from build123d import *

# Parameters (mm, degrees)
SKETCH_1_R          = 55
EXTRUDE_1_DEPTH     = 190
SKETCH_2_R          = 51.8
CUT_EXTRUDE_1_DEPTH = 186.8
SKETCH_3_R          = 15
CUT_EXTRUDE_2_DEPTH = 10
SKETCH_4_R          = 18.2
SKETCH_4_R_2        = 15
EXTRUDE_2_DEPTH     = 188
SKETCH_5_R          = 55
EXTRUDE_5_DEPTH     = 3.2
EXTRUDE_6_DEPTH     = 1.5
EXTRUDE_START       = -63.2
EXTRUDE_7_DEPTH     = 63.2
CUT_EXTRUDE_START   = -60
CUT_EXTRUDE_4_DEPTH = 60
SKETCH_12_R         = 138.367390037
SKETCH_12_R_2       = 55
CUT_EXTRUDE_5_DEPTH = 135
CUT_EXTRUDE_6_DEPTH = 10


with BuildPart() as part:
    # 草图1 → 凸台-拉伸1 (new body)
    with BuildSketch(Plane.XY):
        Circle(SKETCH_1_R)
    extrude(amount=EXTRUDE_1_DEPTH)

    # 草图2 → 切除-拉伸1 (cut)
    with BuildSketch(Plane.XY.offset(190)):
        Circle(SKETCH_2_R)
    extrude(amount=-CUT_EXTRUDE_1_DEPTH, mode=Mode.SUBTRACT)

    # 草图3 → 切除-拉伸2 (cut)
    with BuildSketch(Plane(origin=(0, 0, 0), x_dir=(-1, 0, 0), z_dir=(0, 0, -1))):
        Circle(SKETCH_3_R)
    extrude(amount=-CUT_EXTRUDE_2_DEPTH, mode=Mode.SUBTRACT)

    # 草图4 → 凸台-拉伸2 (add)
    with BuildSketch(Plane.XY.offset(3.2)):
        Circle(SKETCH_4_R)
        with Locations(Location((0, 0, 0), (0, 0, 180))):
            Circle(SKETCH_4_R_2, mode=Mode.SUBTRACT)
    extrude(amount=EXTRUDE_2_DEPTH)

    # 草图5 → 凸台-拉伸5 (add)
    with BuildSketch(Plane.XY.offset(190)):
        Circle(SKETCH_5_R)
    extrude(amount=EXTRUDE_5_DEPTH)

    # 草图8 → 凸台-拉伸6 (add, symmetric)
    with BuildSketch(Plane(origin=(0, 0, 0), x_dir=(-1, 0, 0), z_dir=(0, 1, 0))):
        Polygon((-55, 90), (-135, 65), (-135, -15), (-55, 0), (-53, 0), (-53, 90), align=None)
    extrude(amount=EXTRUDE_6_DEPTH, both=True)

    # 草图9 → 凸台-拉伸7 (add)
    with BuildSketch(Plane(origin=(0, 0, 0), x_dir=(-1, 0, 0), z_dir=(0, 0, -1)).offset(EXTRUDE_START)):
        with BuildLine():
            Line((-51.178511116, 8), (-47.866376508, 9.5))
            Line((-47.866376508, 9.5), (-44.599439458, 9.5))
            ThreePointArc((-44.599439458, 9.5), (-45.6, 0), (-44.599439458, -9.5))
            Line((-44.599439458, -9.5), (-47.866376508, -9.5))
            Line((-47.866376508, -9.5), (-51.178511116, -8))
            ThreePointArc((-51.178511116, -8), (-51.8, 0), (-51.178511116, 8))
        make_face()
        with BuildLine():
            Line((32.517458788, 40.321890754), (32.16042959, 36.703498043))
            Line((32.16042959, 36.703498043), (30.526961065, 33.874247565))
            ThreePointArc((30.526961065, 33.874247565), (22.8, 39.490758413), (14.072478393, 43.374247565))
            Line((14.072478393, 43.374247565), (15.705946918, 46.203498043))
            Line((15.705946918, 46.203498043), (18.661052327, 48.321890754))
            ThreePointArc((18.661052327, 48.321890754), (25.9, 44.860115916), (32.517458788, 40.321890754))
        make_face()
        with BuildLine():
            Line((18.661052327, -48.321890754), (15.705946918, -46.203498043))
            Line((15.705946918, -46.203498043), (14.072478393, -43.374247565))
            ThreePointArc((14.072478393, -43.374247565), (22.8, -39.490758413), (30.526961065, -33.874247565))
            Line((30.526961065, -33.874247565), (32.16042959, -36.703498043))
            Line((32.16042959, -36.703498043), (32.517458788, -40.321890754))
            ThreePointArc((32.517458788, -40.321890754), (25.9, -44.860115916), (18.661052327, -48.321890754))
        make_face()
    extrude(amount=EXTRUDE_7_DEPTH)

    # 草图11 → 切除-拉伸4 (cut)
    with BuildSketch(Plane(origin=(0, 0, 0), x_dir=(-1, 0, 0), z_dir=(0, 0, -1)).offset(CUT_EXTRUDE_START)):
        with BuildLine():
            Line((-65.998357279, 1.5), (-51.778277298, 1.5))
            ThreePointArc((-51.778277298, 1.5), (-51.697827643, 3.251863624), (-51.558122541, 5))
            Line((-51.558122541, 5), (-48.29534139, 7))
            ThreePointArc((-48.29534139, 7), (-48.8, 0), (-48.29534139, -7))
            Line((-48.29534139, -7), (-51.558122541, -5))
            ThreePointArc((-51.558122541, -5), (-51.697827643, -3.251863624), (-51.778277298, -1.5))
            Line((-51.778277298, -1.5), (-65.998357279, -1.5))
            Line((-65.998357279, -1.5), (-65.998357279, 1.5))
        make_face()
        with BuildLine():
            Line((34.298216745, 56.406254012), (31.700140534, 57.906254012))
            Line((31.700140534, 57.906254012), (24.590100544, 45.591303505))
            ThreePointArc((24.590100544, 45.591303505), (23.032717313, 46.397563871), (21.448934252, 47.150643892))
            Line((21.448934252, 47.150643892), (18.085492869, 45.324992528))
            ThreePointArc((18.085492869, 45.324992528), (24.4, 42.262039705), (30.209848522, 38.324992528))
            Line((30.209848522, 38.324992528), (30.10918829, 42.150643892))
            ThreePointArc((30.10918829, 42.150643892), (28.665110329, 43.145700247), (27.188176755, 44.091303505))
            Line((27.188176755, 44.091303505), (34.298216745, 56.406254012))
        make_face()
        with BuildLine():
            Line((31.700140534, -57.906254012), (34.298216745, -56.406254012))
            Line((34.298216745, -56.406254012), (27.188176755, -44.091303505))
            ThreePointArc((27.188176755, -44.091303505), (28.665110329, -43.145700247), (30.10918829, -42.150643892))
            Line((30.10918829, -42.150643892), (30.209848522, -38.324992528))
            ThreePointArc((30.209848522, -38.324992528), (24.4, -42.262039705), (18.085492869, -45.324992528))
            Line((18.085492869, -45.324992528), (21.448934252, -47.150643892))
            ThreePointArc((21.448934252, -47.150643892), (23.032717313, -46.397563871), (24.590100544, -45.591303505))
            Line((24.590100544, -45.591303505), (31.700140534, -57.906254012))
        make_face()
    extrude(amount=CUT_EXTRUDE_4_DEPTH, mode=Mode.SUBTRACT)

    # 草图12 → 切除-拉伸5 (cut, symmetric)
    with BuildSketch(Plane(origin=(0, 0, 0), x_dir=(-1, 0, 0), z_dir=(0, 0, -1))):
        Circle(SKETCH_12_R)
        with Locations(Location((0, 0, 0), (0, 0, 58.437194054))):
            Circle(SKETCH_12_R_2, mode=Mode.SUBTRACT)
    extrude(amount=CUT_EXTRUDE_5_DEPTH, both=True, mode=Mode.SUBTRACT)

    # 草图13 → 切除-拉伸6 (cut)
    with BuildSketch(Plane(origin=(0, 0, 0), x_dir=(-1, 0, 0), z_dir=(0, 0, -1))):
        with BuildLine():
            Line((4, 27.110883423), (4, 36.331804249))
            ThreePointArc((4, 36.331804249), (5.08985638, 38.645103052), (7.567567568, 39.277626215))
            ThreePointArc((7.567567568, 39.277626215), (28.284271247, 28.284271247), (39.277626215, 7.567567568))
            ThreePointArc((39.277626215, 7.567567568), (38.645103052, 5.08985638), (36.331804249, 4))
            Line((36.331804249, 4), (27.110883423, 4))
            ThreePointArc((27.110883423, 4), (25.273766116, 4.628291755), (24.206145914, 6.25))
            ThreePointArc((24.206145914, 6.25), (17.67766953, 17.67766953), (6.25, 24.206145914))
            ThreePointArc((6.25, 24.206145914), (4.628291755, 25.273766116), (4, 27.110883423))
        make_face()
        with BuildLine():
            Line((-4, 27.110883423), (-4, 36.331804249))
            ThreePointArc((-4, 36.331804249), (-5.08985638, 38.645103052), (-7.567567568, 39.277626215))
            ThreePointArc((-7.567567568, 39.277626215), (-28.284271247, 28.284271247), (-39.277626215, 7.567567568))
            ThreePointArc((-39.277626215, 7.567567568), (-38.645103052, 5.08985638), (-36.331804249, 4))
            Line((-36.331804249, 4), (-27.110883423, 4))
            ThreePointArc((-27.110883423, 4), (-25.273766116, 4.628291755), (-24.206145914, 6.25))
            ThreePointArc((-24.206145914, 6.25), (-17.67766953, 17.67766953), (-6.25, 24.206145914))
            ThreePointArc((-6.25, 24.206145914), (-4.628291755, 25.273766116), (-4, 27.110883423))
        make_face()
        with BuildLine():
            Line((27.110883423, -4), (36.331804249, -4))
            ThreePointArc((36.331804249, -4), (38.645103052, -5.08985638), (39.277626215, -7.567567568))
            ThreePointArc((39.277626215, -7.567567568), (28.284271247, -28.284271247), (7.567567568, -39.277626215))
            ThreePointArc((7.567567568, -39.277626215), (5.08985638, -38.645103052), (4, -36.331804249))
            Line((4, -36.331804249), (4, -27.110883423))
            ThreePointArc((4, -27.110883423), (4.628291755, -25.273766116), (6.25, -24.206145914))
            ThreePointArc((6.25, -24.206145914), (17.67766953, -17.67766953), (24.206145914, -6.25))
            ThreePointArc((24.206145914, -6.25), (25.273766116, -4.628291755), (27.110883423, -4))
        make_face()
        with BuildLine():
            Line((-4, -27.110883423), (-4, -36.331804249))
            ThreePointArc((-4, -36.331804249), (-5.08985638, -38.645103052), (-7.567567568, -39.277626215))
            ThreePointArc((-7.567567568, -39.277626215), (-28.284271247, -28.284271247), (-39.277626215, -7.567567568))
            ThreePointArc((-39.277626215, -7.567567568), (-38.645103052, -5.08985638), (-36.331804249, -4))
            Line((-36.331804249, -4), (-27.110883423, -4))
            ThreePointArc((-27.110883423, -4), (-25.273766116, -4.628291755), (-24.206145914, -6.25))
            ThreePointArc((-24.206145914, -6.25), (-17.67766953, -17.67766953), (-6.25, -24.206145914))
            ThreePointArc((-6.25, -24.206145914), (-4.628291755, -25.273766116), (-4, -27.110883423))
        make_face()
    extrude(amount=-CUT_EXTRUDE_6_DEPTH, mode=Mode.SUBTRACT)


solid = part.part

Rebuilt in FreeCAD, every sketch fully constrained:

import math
import FreeCAD as App
import Part
import Sketcher
Q = App.Units.Quantity

doc = App.newDocument("Part")
params = doc.addObject("Spreadsheet::Sheet", "Params")
for row, (alias, value) in enumerate([
    ("sketch1_diameter", "110 mm"),
    ("pad1_length", "190 mm"),
    ("sketch2_diameter", "103.6 mm"),
    ("pocket1_length", "186.8 mm"),
    ("sketch3_diameter", "30 mm"),
    ("pocket2_length", "10 mm"),
    ("sketch4_diameter", "30 mm"),
    ("sketch4_diameter2", "36.4 mm"),
    ("pad2_length", "188 mm"),
    ("sketch5_diameter", "110 mm"),
    ("pad3_length", "3.2 mm"),
    ("sketch6_width", "2 mm"),
    ("sketch6_height", "80 mm"),
    ("sketch6_height2", "90 mm"),
    ("pad4_length", "3 mm"),
    ("sketch7_radius", "51.8 mm"),
    ("sketch7_radius2", "45.6 mm"),
    ("pad5_length", "63.2 mm"),
    ("sketch8_radius", "51.799999 mm"),
    ("sketch8_radius2", "48.8 mm"),
    ("sketch8_height", "3 mm"),
    ("sketch8_length", "3 mm"),
    ("pocket3_length", "60 mm"),
    ("sketch9_diameter", "110 mm"),
    ("pocket4_length", "270 mm"),
    ("sketch10_radius", "3 mm"),
    ("sketch10_radius2", "25 mm"),
    ("sketch10_radius3", "40 mm"),
    ("pocket5_length", "10 mm"),
], start=1):
    params.set(f"A{row}", alias)
    params.set(f"B{row}", "=" + value)
    params.setAlias(f"B{row}", alias)

body = doc.addObject("PartDesign::Body", "Body")

# Sketch on XY plane
sketch1 = body.newObject("Sketcher::SketchObject", "Sketch")
sketch1.AttachmentSupport = (doc.getObject("XY_Plane"), [""])
sketch1.MapMode = "FlatFace"
sketch1.addGeometry(Part.Circle(App.Vector(0, 0, 0), App.Vector(0, 0, 1), 55), False)
sketch1.addConstraint(Sketcher.Constraint("Coincident", 0, 3, -1, 1))
sketch1.addConstraint(Sketcher.Constraint("Diameter", 0, Q("110 mm")))
sketch1.setExpression("Constraints[1]", "Params.sketch1_diameter")
pad1 = body.newObject("PartDesign::Pad", "Pad")
pad1.Profile = sketch1
pad1.setExpression("Length", "Params.pad1_length")

# Sketch on XY plane
sketch2 = body.newObject("Sketcher::SketchObject", "Sketch001")
sketch2.AttachmentSupport = (doc.getObject("XY_Plane"), [""])
sketch2.MapMode = "FlatFace"
sketch2.AttachmentOffset = App.Placement(App.Vector(0, 0, 190), App.Rotation())
sketch2.addGeometry(Part.Circle(App.Vector(0, 0, 0), App.Vector(0, 0, 1), 52), False)
sketch2.addConstraint(Sketcher.Constraint("Coincident", 0, 3, -1, 1))
sketch2.addConstraint(Sketcher.Constraint("Diameter", 0, Q("103.6 mm")))
sketch2.setExpression("Constraints[1]", "Params.sketch2_diameter")
pocket1 = body.newObject("PartDesign::Pocket", "Pocket")
pocket1.Profile = sketch2
pocket1.setExpression("Length", "Params.pocket1_length")

# Sketch on XY plane
sketch3 = body.newObject("Sketcher::SketchObject", "Sketch002")
sketch3.AttachmentSupport = (doc.getObject("XY_Plane"), [""])
sketch3.MapMode = "FlatFace"
sketch3.addGeometry(Part.Circle(App.Vector(0, 0, 0), App.Vector(0, 0, 1), 15), False)
sketch3.addConstraint(Sketcher.Constraint("Coincident", 0, 3, -1, 1))
sketch3.addConstraint(Sketcher.Constraint("Diameter", 0, Q("30 mm")))
sketch3.setExpression("Constraints[1]", "Params.sketch3_diameter")
pocket2 = body.newObject("PartDesign::Pocket", "Pocket001")
pocket2.Profile = sketch3
pocket2.setExpression("Length", "Params.pocket2_length")
pocket2.Reversed = True

# Sketch on XY plane
sketch4 = body.newObject("Sketcher::SketchObject", "Sketch003")
sketch4.AttachmentSupport = (doc.getObject("XY_Plane"), [""])
sketch4.MapMode = "FlatFace"
sketch4.AttachmentOffset = App.Placement(App.Vector(0, 0, 3.2), App.Rotation())
sketch4.addGeometry(Part.Circle(App.Vector(0, 0, 0), App.Vector(0, 0, 1), 18), False)
sketch4.addGeometry(Part.Circle(App.Vector(0, 0, 0), App.Vector(0, 0, 1), 15), False)
sketch4.addConstraint(Sketcher.Constraint("Coincident", 0, 3, -1, 1))
sketch4.addConstraint(Sketcher.Constraint("Coincident", 1, 3, -1, 1))
sketch4.addConstraint(Sketcher.Constraint("Diameter", 1, Q("30 mm")))
sketch4.addConstraint(Sketcher.Constraint("Diameter", 0, Q("36.4 mm")))
sketch4.setExpression("Constraints[2]", "Params.sketch4_diameter")
sketch4.setExpression("Constraints[3]", "Params.sketch4_diameter2")
pad2 = body.newObject("PartDesign::Pad", "Pad001")
pad2.Profile = sketch4
pad2.setExpression("Length", "Params.pad2_length")

# Sketch on XY plane
sketch5 = body.newObject("Sketcher::SketchObject", "Sketch004")
sketch5.AttachmentSupport = (doc.getObject("XY_Plane"), [""])
sketch5.MapMode = "FlatFace"
sketch5.AttachmentOffset = App.Placement(App.Vector(0, 0, 190), App.Rotation())
sketch5.addGeometry(Part.Circle(App.Vector(0, 0, 0), App.Vector(0, 0, 1), 55), False)
sketch5.addConstraint(Sketcher.Constraint("Coincident", 0, 3, -1, 1))
sketch5.addConstraint(Sketcher.Constraint("Diameter", 0, Q("110 mm")))
sketch5.setExpression("Constraints[1]", "Params.sketch5_diameter")
pad3 = body.newObject("PartDesign::Pad", "Pad002")
pad3.Profile = sketch5
pad3.setExpression("Length", "Params.pad3_length")

# Sketch on XZ plane
sketch6 = body.newObject("Sketcher::SketchObject", "Sketch005")
sketch6.AttachmentSupport = (doc.getObject("XZ_Plane"), [""])
sketch6.MapMode = "FlatFace"
sketch6.addGeometry(Part.LineSegment(App.Vector(55, 90, 0), App.Vector(135, 65, 0)), False)
sketch6.addGeometry(Part.LineSegment(App.Vector(135, 65, 0), App.Vector(135, -15, 0)), False)
sketch6.addGeometry(Part.LineSegment(App.Vector(135, -15, 0), App.Vector(55, 0, 0)), False)
sketch6.addGeometry(Part.LineSegment(App.Vector(55, 0, 0), App.Vector(53, 0, 0)), False)
sketch6.addGeometry(Part.LineSegment(App.Vector(53, 0, 0), App.Vector(53, 90, 0)), False)
sketch6.addGeometry(Part.LineSegment(App.Vector(53, 90, 0), App.Vector(55, 90, 0)), False)
sketch6.addConstraint(Sketcher.Constraint("Coincident", 0, 2, 1, 1))
sketch6.addConstraint(Sketcher.Constraint("Coincident", 1, 2, 2, 1))
sketch6.addConstraint(Sketcher.Constraint("Coincident", 2, 2, 3, 1))
sketch6.addConstraint(Sketcher.Constraint("Coincident", 3, 2, 4, 1))
sketch6.addConstraint(Sketcher.Constraint("Coincident", 4, 2, 5, 1))
sketch6.addConstraint(Sketcher.Constraint("Coincident", 5, 2, 0, 1))
sketch6.addConstraint(Sketcher.Constraint("Vertical", 1))
sketch6.addConstraint(Sketcher.Constraint("Horizontal", 3))
sketch6.addConstraint(Sketcher.Constraint("Vertical", 4))
sketch6.addConstraint(Sketcher.Constraint("Horizontal", 5))
sketch6.addConstraint(Sketcher.Constraint("PointOnObject", 2, 2, -1))
sketch6.addConstraint(Sketcher.Constraint("Vertical", 2, 2, 5, 2))
sketch6.addConstraint(Sketcher.Constraint("DistanceX", 3, 2, 3, 1, Q("2 mm")))
sketch6.addConstraint(Sketcher.Constraint("DistanceY", 1, 2, 1, 1, Q("80 mm")))
sketch6.addConstraint(Sketcher.Constraint("DistanceY", 4, 1, 4, 2, Q("90 mm")))
sketch6.addConstraint(Sketcher.Constraint("DistanceX", -1, 1, 0, 2, Q("135 mm")))
sketch6.addConstraint(Sketcher.Constraint("DistanceY", -1, 1, 0, 2, Q("65 mm")))
sketch6.addConstraint(Sketcher.Constraint("DistanceX", -1, 1, 2, 2, Q("55 mm")))
sketch6.setExpression("Constraints[12]", "Params.sketch6_width")
sketch6.setExpression("Constraints[13]", "Params.sketch6_height")
sketch6.setExpression("Constraints[14]", "Params.sketch6_height2")
pad4 = body.newObject("PartDesign::Pad", "Pad003")
pad4.Profile = sketch6
pad4.setExpression("Length", "Params.pad4_length")
pad4.Midplane = True

# Sketch on XY plane
sketch7 = body.newObject("Sketcher::SketchObject", "Sketch006")
sketch7.AttachmentSupport = (doc.getObject("XY_Plane"), [""])
sketch7.MapMode = "FlatFace"
sketch7.AttachmentOffset = App.Placement(App.Vector(0, 0, 63.2), App.Rotation())
sketch7.addGeometry(Part.LineSegment(App.Vector(47.9, 9.5, 0), App.Vector(51.2, 8, 0)), False)
sketch7.addGeometry(Part.ArcOfCircle(Part.Circle(App.Vector(0, 0, 0), App.Vector(0, 0, 1), 51.8), math.radians(-8.88), math.radians(8.88)), False)
sketch7.addGeometry(Part.LineSegment(App.Vector(51.2, -8, 0), App.Vector(47.9, -9.5, 0)), False)
sketch7.addGeometry(Part.LineSegment(App.Vector(47.9, -9.5, 0), App.Vector(44.6, -9.5, 0)), False)
sketch7.addGeometry(Part.ArcOfCircle(Part.Circle(App.Vector(0, 0, 0), App.Vector(0, 0, 1), 45.6), math.radians(-12), math.radians(12)), False)
sketch7.addGeometry(Part.LineSegment(App.Vector(44.6, 9.5, 0), App.Vector(47.9, 9.5, 0)), False)
sketch7.addGeometry(Part.LineSegment(App.Vector(-32.2, 36.7, 0), App.Vector(-32.5, 40.3, 0)), False)
sketch7.addGeometry(Part.ArcOfCircle(Part.Circle(App.Vector(0, 0, 0), App.Vector(0, 0, 1), 51.8), math.radians(111.12), math.radians(128.88)), False)
sketch7.addGeometry(Part.LineSegment(App.Vector(-18.7, 48.3, 0), App.Vector(-15.7, 46.2, 0)), False)
sketch7.addGeometry(Part.LineSegment(App.Vector(-15.7, 46.2, 0), App.Vector(-14.1, 43.4, 0)), False)
sketch7.addGeometry(Part.ArcOfCircle(Part.Circle(App.Vector(0, 0, 0), App.Vector(0, 0, 1), 45.6), math.radians(108), math.radians(132)), False)
sketch7.addGeometry(Part.LineSegment(App.Vector(-30.5, 33.9, 0), App.Vector(-32.2, 36.7, 0)), False)
sketch7.addGeometry(Part.LineSegment(App.Vector(-15.7, -46.2, 0), App.Vector(-18.7, -48.3, 0)), False)
sketch7.addGeometry(Part.ArcOfCircle(Part.Circle(App.Vector(0, 0, 0), App.Vector(0, 0, 1), 51.8), math.radians(-128.88), math.radians(-111.12)), False)
sketch7.addGeometry(Part.LineSegment(App.Vector(-32.5, -40.3, 0), App.Vector(-32.2, -36.7, 0)), False)
sketch7.addGeometry(Part.LineSegment(App.Vector(-32.2, -36.7, 0), App.Vector(-30.5, -33.9, 0)), False)
sketch7.addGeometry(Part.ArcOfCircle(Part.Circle(App.Vector(0, 0, 0), App.Vector(0, 0, 1), 45.6), math.radians(-132), math.radians(-108)), False)
sketch7.addGeometry(Part.LineSegment(App.Vector(-14.1, -43.4, 0), App.Vector(-15.7, -46.2, 0)), False)
sketch7.addConstraint(Sketcher.Constraint("Coincident", 0, 2, 1, 2))
sketch7.addConstraint(Sketcher.Constraint("Coincident", 1, 1, 2, 1))
sketch7.addConstraint(Sketcher.Constraint("Coincident", 2, 2, 3, 1))
sketch7.addConstraint(Sketcher.Constraint("Coincident", 3, 2, 4, 1))
sketch7.addConstraint(Sketcher.Constraint("Coincident", 4, 2, 5, 1))
sketch7.addConstraint(Sketcher.Constraint("Coincident", 5, 2, 0, 1))
sketch7.addConstraint(Sketcher.Constraint("Coincident", 6, 2, 7, 2))
sketch7.addConstraint(Sketcher.Constraint("Coincident", 7, 1, 8, 1))
sketch7.addConstraint(Sketcher.Constraint("Coincident", 8, 2, 9, 1))
sketch7.addConstraint(Sketcher.Constraint("Coincident", 9, 2, 10, 1))
sketch7.addConstraint(Sketcher.Constraint("Coincident", 10, 2, 11, 1))
sketch7.addConstraint(Sketcher.Constraint("Coincident", 11, 2, 6, 1))
sketch7.addConstraint(Sketcher.Constraint("Coincident", 12, 2, 13, 2))
sketch7.addConstraint(Sketcher.Constraint("Coincident", 13, 1, 14, 1))
sketch7.addConstraint(Sketcher.Constraint("Coincident", 14, 2, 15, 1))
sketch7.addConstraint(Sketcher.Constraint("Coincident", 15, 2, 16, 1))
sketch7.addConstraint(Sketcher.Constraint("Coincident", 16, 2, 17, 1))
sketch7.addConstraint(Sketcher.Constraint("Coincident", 17, 2, 12, 1))
sketch7.addConstraint(Sketcher.Constraint("Horizontal", 3))
sketch7.addConstraint(Sketcher.Constraint("Horizontal", 5))
sketch7.addConstraint(Sketcher.Constraint("Coincident", 1, 3, -1, 1))
sketch7.addConstraint(Sketcher.Constraint("Coincident", 4, 3, -1, 1))
sketch7.addConstraint(Sketcher.Constraint("Coincident", 7, 3, -1, 1))
sketch7.addConstraint(Sketcher.Constraint("Coincident", 10, 3, -1, 1))
sketch7.addConstraint(Sketcher.Constraint("Coincident", 13, 3, -1, 1))
sketch7.addConstraint(Sketcher.Constraint("Coincident", 16, 3, -1, 1))
sketch7.addConstraint(Sketcher.Constraint("Equal", 1, 7))
sketch7.addConstraint(Sketcher.Constraint("Equal", 4, 10))
sketch7.addConstraint(Sketcher.Constraint("Equal", 7, 13))
sketch7.addConstraint(Sketcher.Constraint("Equal", 10, 16))
sketch7.addConstraint(Sketcher.Constraint("Symmetric", 2, 2, 5, 2, -1))
sketch7.addConstraint(Sketcher.Constraint("Symmetric", 11, 2, 14, 2, -1))
sketch7.addConstraint(Sketcher.Constraint("Symmetric", 8, 2, 17, 2, -1))
sketch7.addConstraint(Sketcher.Constraint("Parallel", 9, 11))
sketch7.addConstraint(Sketcher.Constraint("Parallel", 15, 17))
sketch7.addConstraint(Sketcher.Constraint("Vertical", 0, 2, 1, 1))
sketch7.addConstraint(Sketcher.Constraint("Vertical", 7, 1, 12, 2))
sketch7.addConstraint(Sketcher.Constraint("Vertical", 6, 2, 13, 1))
sketch7.addConstraint(Sketcher.Constraint("Vertical", 10, 2, 15, 2))
sketch7.addConstraint(Sketcher.Constraint("Equal", 2, 6))
sketch7.addConstraint(Sketcher.Constraint("Equal", 6, 8))
sketch7.addConstraint(Sketcher.Constraint("Equal", 9, 11))
sketch7.addConstraint(Sketcher.Constraint("Radius", 1, Q("51.8 mm")))
sketch7.addConstraint(Sketcher.Constraint("Radius", 4, Q("45.6 mm")))
sketch7.addConstraint(Sketcher.Constraint("Angle", 9, Q("-60 deg")))
sketch7.addConstraint(Sketcher.Constraint("DistanceY", -1, 1, 0, 2, Q("8 mm")))
sketch7.addConstraint(Sketcher.Constraint("DistanceY", 3, 2, 4, 2, Q("19 mm")))
sketch7.addConstraint(Sketcher.Constraint("DistanceY", 6, 2, 7, 1, Q("8 mm")))
sketch7.addConstraint(Sketcher.Constraint("DistanceY", 10, 2, 9, 2, Q("9.5 mm")))
sketch7.addConstraint(Sketcher.Constraint("DistanceY", -1, 1, 8, 2, Q("46.203498 mm")))
sketch7.addConstraint(Sketcher.Constraint("DistanceX", 3, 2, 3, 1, Q("3.266937 mm")))
sketch7.setExpression("Constraints[42]", "Params.sketch7_radius")
sketch7.setExpression("Constraints[43]", "Params.sketch7_radius2")
pad5 = body.newObject("PartDesign::Pad", "Pad004")
pad5.Profile = sketch7
pad5.setExpression("Length", "Params.pad5_length")
pad5.Reversed = True

# Sketch on XY plane
sketch8 = body.newObject("Sketcher::SketchObject", "Sketch007")
sketch8.AttachmentSupport = (doc.getObject("XY_Plane"), [""])
sketch8.MapMode = "FlatFace"
sketch8.AttachmentOffset = App.Placement(App.Vector(0, 0, 60), App.Rotation())
sketch8.addGeometry(Part.LineSegment(App.Vector(51.8, 1.5, 0), App.Vector(66, 1.5, 0)), False)
sketch8.addGeometry(Part.LineSegment(App.Vector(66, 1.5, 0), App.Vector(66, -1.5, 0)), False)
sketch8.addGeometry(Part.LineSegment(App.Vector(66, -1.5, 0), App.Vector(51.8, -1.5, 0)), False)
sketch8.addGeometry(Part.ArcOfCircle(Part.Circle(App.Vector(0, 0, 0), App.Vector(0, 0, 1), 51.8), math.radians(-5.54), math.radians(-1.66)), False)
sketch8.addGeometry(Part.LineSegment(App.Vector(51.6, -5, 0), App.Vector(48.3, -7, 0)), False)
sketch8.addGeometry(Part.ArcOfCircle(Part.Circle(App.Vector(0, 0, 0), App.Vector(0, 0, 1), 48.8), math.radians(-8.25), math.radians(8.25)), False)
sketch8.addGeometry(Part.LineSegment(App.Vector(48.3, 7, 0), App.Vector(51.6, 5, 0)), False)
sketch8.addGeometry(Part.ArcOfCircle(Part.Circle(App.Vector(0, 0, 0), App.Vector(0, 0, 1), 51.8), math.radians(1.66), math.radians(5.54)), False)
sketch8.addGeometry(Part.LineSegment(App.Vector(-34.3, 56.4, 0), App.Vector(-31.7, 57.9, 0)), False)
sketch8.addGeometry(Part.LineSegment(App.Vector(-31.7, 57.9, 0), App.Vector(-24.6, 45.6, 0)), False)
sketch8.addGeometry(Part.ArcOfCircle(Part.Circle(App.Vector(0, 0, 0), App.Vector(0, 0, 1), 51.8), math.radians(114.46), math.radians(118.34)), False)
sketch8.addGeometry(Part.LineSegment(App.Vector(-21.4, 47.2, 0), App.Vector(-18.1, 45.3, 0)), False)
sketch8.addGeometry(Part.ArcOfCircle(Part.Circle(App.Vector(0, 0, 0), App.Vector(0, 0, 1), 48.8), math.radians(111.75), math.radians(128.25)), False)
sketch8.addGeometry(Part.LineSegment(App.Vector(-30.2, 38.3, 0), App.Vector(-30.1, 42.2, 0)), False)
sketch8.addGeometry(Part.ArcOfCircle(Part.Circle(App.Vector(0, 0, 0), App.Vector(0, 0, 1), 51.8), math.radians(121.66), math.radians(125.54)), False)
sketch8.addGeometry(Part.LineSegment(App.Vector(-27.2, 44.1, 0), App.Vector(-34.3, 56.4, 0)), False)
sketch8.addGeometry(Part.LineSegment(App.Vector(-31.7, -57.9, 0), App.Vector(-34.3, -56.4, 0)), False)
sketch8.addGeometry(Part.LineSegment(App.Vector(-34.3, -56.4, 0), App.Vector(-27.2, -44.1, 0)), False)
sketch8.addGeometry(Part.ArcOfCircle(Part.Circle(App.Vector(0, 0, 0), App.Vector(0, 0, 1), 51.8), math.radians(-125.54), math.radians(-121.66)), False)
sketch8.addGeometry(Part.LineSegment(App.Vector(-30.1, -42.2, 0), App.Vector(-30.2, -38.3, 0)), False)
sketch8.addGeometry(Part.ArcOfCircle(Part.Circle(App.Vector(0, 0, 0), App.Vector(0, 0, 1), 48.8), math.radians(-128.25), math.radians(-111.75)), False)
sketch8.addGeometry(Part.LineSegment(App.Vector(-18.1, -45.3, 0), App.Vector(-21.4, -47.2, 0)), False)
sketch8.addGeometry(Part.ArcOfCircle(Part.Circle(App.Vector(0, 0, 0), App.Vector(0, 0, 1), 51.8), math.radians(-118.34), math.radians(-114.46)), False)
sketch8.addGeometry(Part.LineSegment(App.Vector(-24.6, -45.6, 0), App.Vector(-31.7, -57.9, 0)), False)
sketch8.addConstraint(Sketcher.Constraint("Coincident", 0, 2, 1, 1))
sketch8.addConstraint(Sketcher.Constraint("Coincident", 1, 2, 2, 1))
sketch8.addConstraint(Sketcher.Constraint("Coincident", 2, 2, 3, 2))
sketch8.addConstraint(Sketcher.Constraint("Coincident", 3, 1, 4, 1))
sketch8.addConstraint(Sketcher.Constraint("Coincident", 4, 2, 5, 1))
sketch8.addConstraint(Sketcher.Constraint("Coincident", 5, 2, 6, 1))
sketch8.addConstraint(Sketcher.Constraint("Coincident", 6, 2, 7, 2))
sketch8.addConstraint(Sketcher.Constraint("Coincident", 7, 1, 0, 1))
sketch8.addConstraint(Sketcher.Constraint("Coincident", 8, 2, 9, 1))
sketch8.addConstraint(Sketcher.Constraint("Coincident", 9, 2, 10, 2))
sketch8.addConstraint(Sketcher.Constraint("Coincident", 10, 1, 11, 1))
sketch8.addConstraint(Sketcher.Constraint("Coincident", 11, 2, 12, 1))
sketch8.addConstraint(Sketcher.Constraint("Coincident", 12, 2, 13, 1))
sketch8.addConstraint(Sketcher.Constraint("Coincident", 13, 2, 14, 2))
sketch8.addConstraint(Sketcher.Constraint("Coincident", 14, 1, 15, 1))
sketch8.addConstraint(Sketcher.Constraint("Coincident", 15, 2, 8, 1))
sketch8.addConstraint(Sketcher.Constraint("Coincident", 16, 2, 17, 1))
sketch8.addConstraint(Sketcher.Constraint("Coincident", 17, 2, 18, 2))
sketch8.addConstraint(Sketcher.Constraint("Coincident", 18, 1, 19, 1))
sketch8.addConstraint(Sketcher.Constraint("Coincident", 19, 2, 20, 1))
sketch8.addConstraint(Sketcher.Constraint("Coincident", 20, 2, 21, 1))
sketch8.addConstraint(Sketcher.Constraint("Coincident", 21, 2, 22, 2))
sketch8.addConstraint(Sketcher.Constraint("Coincident", 22, 1, 23, 1))
sketch8.addConstraint(Sketcher.Constraint("Coincident", 23, 2, 16, 1))
sketch8.addConstraint(Sketcher.Constraint("Horizontal", 0))
sketch8.addConstraint(Sketcher.Constraint("Vertical", 1))
sketch8.addConstraint(Sketcher.Constraint("Horizontal", 2))
sketch8.addConstraint(Sketcher.Constraint("Coincident", 3, 3, -1, 1))
sketch8.addConstraint(Sketcher.Constraint("Coincident", 5, 3, -1, 1))
sketch8.addConstraint(Sketcher.Constraint("Coincident", 7, 3, -1, 1))
sketch8.addConstraint(Sketcher.Constraint("Coincident", 10, 3, -1, 1))
sketch8.addConstraint(Sketcher.Constraint("Coincident", 12, 3, -1, 1))
sketch8.addConstraint(Sketcher.Constraint("Coincident", 14, 3, -1, 1))
sketch8.addConstraint(Sketcher.Constraint("Coincident", 18, 3, -1, 1))
sketch8.addConstraint(Sketcher.Constraint("Coincident", 20, 3, -1, 1))
sketch8.addConstraint(Sketcher.Constraint("Coincident", 22, 3, -1, 1))
sketch8.addConstraint(Sketcher.Constraint("Equal", 3, 7))
sketch8.addConstraint(Sketcher.Constraint("Equal", 7, 10))
sketch8.addConstraint(Sketcher.Constraint("Equal", 5, 12))
sketch8.addConstraint(Sketcher.Constraint("Equal", 10, 14))
sketch8.addConstraint(Sketcher.Constraint("Equal", 14, 18))
sketch8.addConstraint(Sketcher.Constraint("Equal", 12, 20))
sketch8.addConstraint(Sketcher.Constraint("Equal", 18, 22))
sketch8.addConstraint(Sketcher.Constraint("Symmetric", 15, 2, 16, 2, -1))
sketch8.addConstraint(Sketcher.Constraint("Symmetric", 8, 2, 23, 2, -1))
sketch8.addConstraint(Sketcher.Constraint("Perpendicular", 8, 9))
sketch8.addConstraint(Sketcher.Constraint("Parallel", 9, 15))
sketch8.addConstraint(Sketcher.Constraint("Perpendicular", 16, 17))
sketch8.addConstraint(Sketcher.Constraint("Parallel", 17, 23))
sketch8.addConstraint(Sketcher.Constraint("Vertical", 4, 2, 5, 2))
sketch8.addConstraint(Sketcher.Constraint("Vertical", 3, 1, 6, 2))
sketch8.addConstraint(Sketcher.Constraint("Vertical", 2, 2, 7, 1))
sketch8.addConstraint(Sketcher.Constraint("Vertical", 13, 2, 18, 1))
sketch8.addConstraint(Sketcher.Constraint("Vertical", 12, 2, 19, 2))
sketch8.addConstraint(Sketcher.Constraint("Vertical", 11, 2, 20, 2))
sketch8.addConstraint(Sketcher.Constraint("Vertical", 10, 1, 21, 2))
sketch8.addConstraint(Sketcher.Constraint("Equal", 6, 11))
sketch8.addConstraint(Sketcher.Constraint("Equal", 11, 13))
sketch8.addConstraint(Sketcher.Constraint("Equal", 9, 15))
sketch8.addConstraint(Sketcher.Constraint("Radius", 3, Q("51.799999 mm")))
sketch8.addConstraint(Sketcher.Constraint("Radius", 5, Q("48.8 mm")))
sketch8.addConstraint(Sketcher.Constraint("DistanceY", 1, 2, 1, 1, Q("3 mm")))
sketch8.addConstraint(Sketcher.Constraint("Angle", 8, Q("30 deg")))
sketch8.addConstraint(Sketcher.Constraint("Distance", 8, Q("3 mm")))
sketch8.addConstraint(Sketcher.Constraint("DistanceY", 3, 1, -1, 1, Q("5 mm")))
sketch8.addConstraint(Sketcher.Constraint("DistanceY", 4, 2, -1, 1, Q("7 mm")))
sketch8.addConstraint(Sketcher.Constraint("DistanceY", 12, 2, 11, 2, Q("7 mm")))
sketch8.addConstraint(Sketcher.Constraint("DistanceX", 0, 1, 0, 2, Q("14.22008 mm")))
sketch8.addConstraint(Sketcher.Constraint("Distance", 9, Q("14.22008 mm")))
sketch8.addConstraint(Sketcher.Constraint("DistanceX", 12, 2, -1, 1, Q("30.209849 mm")))
sketch8.setExpression("Constraints[59]", "Params.sketch8_radius")
sketch8.setExpression("Constraints[60]", "Params.sketch8_radius2")
sketch8.setExpression("Constraints[61]", "Params.sketch8_height")
sketch8.setExpression("Constraints[63]", "Params.sketch8_length")
pocket3 = body.newObject("PartDesign::Pocket", "Pocket002")
pocket3.Profile = sketch8
pocket3.setExpression("Length", "Params.pocket3_length")

# Sketch on XY plane
sketch9 = body.newObject("Sketcher::SketchObject", "Sketch008")
sketch9.AttachmentSupport = (doc.getObject("XY_Plane"), [""])
sketch9.MapMode = "FlatFace"
sketch9.addGeometry(Part.Circle(App.Vector(0, 0, 0), App.Vector(0, 0, 1), 138), False)
sketch9.addGeometry(Part.Circle(App.Vector(0, 0, 0), App.Vector(0, 0, 1), 55), False)
sketch9.addConstraint(Sketcher.Constraint("Coincident", 0, 3, -1, 1))
sketch9.addConstraint(Sketcher.Constraint("Coincident", 1, 3, -1, 1))
sketch9.addConstraint(Sketcher.Constraint("Diameter", 1, Q("110 mm")))
sketch9.addConstraint(Sketcher.Constraint("Diameter", 0, Q("276.73478 mm")))
sketch9.setExpression("Constraints[2]", "Params.sketch9_diameter")
pocket4 = body.newObject("PartDesign::Pocket", "Pocket003")
pocket4.Profile = sketch9
pocket4.setExpression("Length", "Params.pocket4_length")
pocket4.Midplane = True

# Sketch on XY plane
sketch10 = body.newObject("Sketcher::SketchObject", "Sketch009")
sketch10.AttachmentSupport = (doc.getObject("XY_Plane"), [""])
sketch10.MapMode = "FlatFace"
sketch10.addGeometry(Part.LineSegment(App.Vector(-4, 36.3, 0), App.Vector(-4, 27.1, 0)), False)
sketch10.addGeometry(Part.ArcOfCircle(Part.Circle(App.Vector(-7, 27.1, 0), App.Vector(0, 0, 1), 3), math.radians(-76), math.radians(0)), False)
sketch10.addGeometry(Part.ArcOfCircle(Part.Circle(App.Vector(0, 0, 0), App.Vector(0, 0, 1), 25), math.radians(104), math.radians(166)), False)
sketch10.addGeometry(Part.ArcOfCircle(Part.Circle(App.Vector(-27.1, 7, 0), App.Vector(0, 0, 1), 3), math.radians(-90), math.radians(-14)), False)
sketch10.addGeometry(Part.LineSegment(App.Vector(-27.1, 4, 0), App.Vector(-36.3, 4, 0)), False)
sketch10.addGeometry(Part.ArcOfCircle(Part.Circle(App.Vector(-36.3, 7, 0), App.Vector(0, 0, 1), 3), math.radians(169), math.radians(270)), False)
sketch10.addGeometry(Part.ArcOfCircle(Part.Circle(App.Vector(0, 0, 0), App.Vector(0, 0, 1), 40), math.radians(101), math.radians(169)), False)
sketch10.addGeometry(Part.ArcOfCircle(Part.Circle(App.Vector(-7, 36.3, 0), App.Vector(0, 0, 1), 3), math.radians(0), math.radians(101)), False)
sketch10.addGeometry(Part.LineSegment(App.Vector(4, 27.1, 0), App.Vector(4, 36.3, 0)), False)
sketch10.addGeometry(Part.ArcOfCircle(Part.Circle(App.Vector(7, 36.3, 0), App.Vector(0, 0, 1), 3), math.radians(79), math.radians(180)), False)
sketch10.addGeometry(Part.ArcOfCircle(Part.Circle(App.Vector(0, 0, 0), App.Vector(0, 0, 1), 40), math.radians(11), math.radians(79)), False)
sketch10.addGeometry(Part.ArcOfCircle(Part.Circle(App.Vector(36.3, 7, 0), App.Vector(0, 0, 1), 3), math.radians(-90), math.radians(11)), False)
sketch10.addGeometry(Part.LineSegment(App.Vector(36.3, 4, 0), App.Vector(27.1, 4, 0)), False)
sketch10.addGeometry(Part.ArcOfCircle(Part.Circle(App.Vector(27.1, 7, 0), App.Vector(0, 0, 1), 3), math.radians(-166), math.radians(-90)), False)
sketch10.addGeometry(Part.ArcOfCircle(Part.Circle(App.Vector(0, 0, 0), App.Vector(0, 0, 1), 25), math.radians(14), math.radians(76)), False)
sketch10.addGeometry(Part.ArcOfCircle(Part.Circle(App.Vector(7, 27.1, 0), App.Vector(0, 0, 1), 3), math.radians(180), math.radians(256)), False)
sketch10.addGeometry(Part.LineSegment(App.Vector(-36.3, -4, 0), App.Vector(-27.1, -4, 0)), False)
sketch10.addGeometry(Part.ArcOfCircle(Part.Circle(App.Vector(-27.1, -7, 0), App.Vector(0, 0, 1), 3), math.radians(14), math.radians(90)), False)
sketch10.addGeometry(Part.ArcOfCircle(Part.Circle(App.Vector(0, 0, 0), App.Vector(0, 0, 1), 25), math.radians(-166), math.radians(-104)), False)
sketch10.addGeometry(Part.ArcOfCircle(Part.Circle(App.Vector(-7, -27.1, 0), App.Vector(0, 0, 1), 3), math.radians(0), math.radians(76)), False)
sketch10.addGeometry(Part.LineSegment(App.Vector(-4, -27.1, 0), App.Vector(-4, -36.3, 0)), False)
sketch10.addGeometry(Part.ArcOfCircle(Part.Circle(App.Vector(-7, -36.3, 0), App.Vector(0, 0, 1), 3), math.radians(-101), math.radians(0)), False)
sketch10.addGeometry(Part.ArcOfCircle(Part.Circle(App.Vector(0, 0, 0), App.Vector(0, 0, 1), 40), math.radians(-169), math.radians(-101)), False)
sketch10.addGeometry(Part.ArcOfCircle(Part.Circle(App.Vector(-36.3, -7, 0), App.Vector(0, 0, 1), 3), math.radians(90), math.radians(191)), False)
sketch10.addGeometry(Part.LineSegment(App.Vector(4, -36.3, 0), App.Vector(4, -27.1, 0)), False)
sketch10.addGeometry(Part.ArcOfCircle(Part.Circle(App.Vector(7, -27.1, 0), App.Vector(0, 0, 1), 3), math.radians(104), math.radians(180)), False)
sketch10.addGeometry(Part.ArcOfCircle(Part.Circle(App.Vector(0, 0, 0), App.Vector(0, 0, 1), 25), math.radians(-76), math.radians(-14)), False)
sketch10.addGeometry(Part.ArcOfCircle(Part.Circle(App.Vector(27.1, -7, 0), App.Vector(0, 0, 1), 3), math.radians(90), math.radians(166)), False)
sketch10.addGeometry(Part.LineSegment(App.Vector(27.1, -4, 0), App.Vector(36.3, -4, 0)), False)
sketch10.addGeometry(Part.ArcOfCircle(Part.Circle(App.Vector(36.3, -7, 0), App.Vector(0, 0, 1), 3), math.radians(-11), math.radians(90)), False)
sketch10.addGeometry(Part.ArcOfCircle(Part.Circle(App.Vector(0, 0, 0), App.Vector(0, 0, 1), 40), math.radians(-79), math.radians(-11)), False)
sketch10.addGeometry(Part.ArcOfCircle(Part.Circle(App.Vector(7, -36.3, 0), App.Vector(0, 0, 1), 3), math.radians(180), math.radians(281)), False)
sketch10.addConstraint(Sketcher.Constraint("Tangent", 0, 2, 1, 2))
sketch10.addConstraint(Sketcher.Constraint("Tangent", 1, 1, 2, 1))
sketch10.addConstraint(Sketcher.Constraint("Tangent", 2, 2, 3, 2))
sketch10.addConstraint(Sketcher.Constraint("Tangent", 3, 1, 4, 1))
sketch10.addConstraint(Sketcher.Constraint("Tangent", 4, 2, 5, 2))
sketch10.addConstraint(Sketcher.Constraint("Tangent", 5, 1, 6, 2))
sketch10.addConstraint(Sketcher.Constraint("Tangent", 6, 1, 7, 2))
sketch10.addConstraint(Sketcher.Constraint("Tangent", 7, 1, 0, 1))
sketch10.addConstraint(Sketcher.Constraint("Tangent", 8, 2, 9, 2))
sketch10.addConstraint(Sketcher.Constraint("Tangent", 9, 1, 10, 2))
sketch10.addConstraint(Sketcher.Constraint("Tangent", 10, 1, 11, 2))
sketch10.addConstraint(Sketcher.Constraint("Tangent", 11, 1, 12, 1))
sketch10.addConstraint(Sketcher.Constraint("Tangent", 12, 2, 13, 2))
sketch10.addConstraint(Sketcher.Constraint("Tangent", 13, 1, 14, 1))
sketch10.addConstraint(Sketcher.Constraint("Tangent", 14, 2, 15, 2))
sketch10.addConstraint(Sketcher.Constraint("Tangent", 15, 1, 8, 1))
sketch10.addConstraint(Sketcher.Constraint("Tangent", 16, 2, 17, 2))
sketch10.addConstraint(Sketcher.Constraint("Tangent", 17, 1, 18, 1))
sketch10.addConstraint(Sketcher.Constraint("Tangent", 18, 2, 19, 2))
sketch10.addConstraint(Sketcher.Constraint("Tangent", 19, 1, 20, 1))
sketch10.addConstraint(Sketcher.Constraint("Tangent", 20, 2, 21, 2))
sketch10.addConstraint(Sketcher.Constraint("Tangent", 21, 1, 22, 2))
sketch10.addConstraint(Sketcher.Constraint("Tangent", 22, 1, 23, 2))
sketch10.addConstraint(Sketcher.Constraint("Tangent", 23, 1, 16, 1))
sketch10.addConstraint(Sketcher.Constraint("Tangent", 24, 2, 25, 2))
sketch10.addConstraint(Sketcher.Constraint("Tangent", 25, 1, 26, 1))
sketch10.addConstraint(Sketcher.Constraint("Tangent", 26, 2, 27, 2))
sketch10.addConstraint(Sketcher.Constraint("Tangent", 27, 1, 28, 1))
sketch10.addConstraint(Sketcher.Constraint("Tangent", 28, 2, 29, 2))
sketch10.addConstraint(Sketcher.Constraint("Tangent", 29, 1, 30, 2))
sketch10.addConstraint(Sketcher.Constraint("Tangent", 30, 1, 31, 2))
sketch10.addConstraint(Sketcher.Constraint("Tangent", 31, 1, 24, 1))
sketch10.addConstraint(Sketcher.Constraint("Vertical", 0))
sketch10.addConstraint(Sketcher.Constraint("Horizontal", 4))
sketch10.addConstraint(Sketcher.Constraint("Vertical", 8))
sketch10.addConstraint(Sketcher.Constraint("Horizontal", 12))
sketch10.addConstraint(Sketcher.Constraint("Horizontal", 16))
sketch10.addConstraint(Sketcher.Constraint("Vertical", 20))
sketch10.addConstraint(Sketcher.Constraint("Vertical", 24))
sketch10.addConstraint(Sketcher.Constraint("Horizontal", 28))
sketch10.addConstraint(Sketcher.Constraint("Coincident", 2, 3, -1, 1))
sketch10.addConstraint(Sketcher.Constraint("Coincident", 6, 3, -1, 1))
sketch10.addConstraint(Sketcher.Constraint("Coincident", 10, 3, -1, 1))
sketch10.addConstraint(Sketcher.Constraint("Coincident", 14, 3, -1, 1))
sketch10.addConstraint(Sketcher.Constraint("Coincident", 18, 3, -1, 1))
sketch10.addConstraint(Sketcher.Constraint("Coincident", 22, 3, -1, 1))
sketch10.addConstraint(Sketcher.Constraint("Coincident", 26, 3, -1, 1))
sketch10.addConstraint(Sketcher.Constraint("Coincident", 30, 3, -1, 1))
sketch10.addConstraint(Sketcher.Constraint("Equal", 1, 3))
sketch10.addConstraint(Sketcher.Constraint("Equal", 3, 5))
sketch10.addConstraint(Sketcher.Constraint("Equal", 5, 7))
sketch10.addConstraint(Sketcher.Constraint("Equal", 7, 9))
sketch10.addConstraint(Sketcher.Constraint("Equal", 6, 10))
sketch10.addConstraint(Sketcher.Constraint("Equal", 9, 11))
sketch10.addConstraint(Sketcher.Constraint("Equal", 11, 13))
sketch10.addConstraint(Sketcher.Constraint("Equal", 2, 14))
sketch10.addConstraint(Sketcher.Constraint("Equal", 13, 15))
sketch10.addConstraint(Sketcher.Constraint("Equal", 15, 17))
sketch10.addConstraint(Sketcher.Constraint("Equal", 14, 18))
sketch10.addConstraint(Sketcher.Constraint("Equal", 17, 19))
sketch10.addConstraint(Sketcher.Constraint("Equal", 19, 21))
sketch10.addConstraint(Sketcher.Constraint("Equal", 10, 22))
sketch10.addConstraint(Sketcher.Constraint("Equal", 21, 23))
sketch10.addConstraint(Sketcher.Constraint("Equal", 23, 25))
sketch10.addConstraint(Sketcher.Constraint("Equal", 18, 26))
sketch10.addConstraint(Sketcher.Constraint("Equal", 25, 27))
sketch10.addConstraint(Sketcher.Constraint("Equal", 27, 29))
sketch10.addConstraint(Sketcher.Constraint("Equal", 22, 30))
sketch10.addConstraint(Sketcher.Constraint("Equal", 29, 31))
sketch10.addConstraint(Sketcher.Constraint("Horizontal", 7, 3, 9, 3))
sketch10.addConstraint(Sketcher.Constraint("Horizontal", 5, 3, 11, 3))
sketch10.addConstraint(Sketcher.Constraint("Horizontal", 19, 3, 25, 3))
sketch10.addConstraint(Sketcher.Constraint("Horizontal", 23, 3, 27, 3))
sketch10.addConstraint(Sketcher.Constraint("Vertical", 3, 3, 17, 3))
sketch10.addConstraint(Sketcher.Constraint("Vertical", 7, 3, 19, 3))
sketch10.addConstraint(Sketcher.Constraint("Equal", 28, 0))
sketch10.addConstraint(Sketcher.Constraint("Radius", 1, Q("3 mm")))
sketch10.addConstraint(Sketcher.Constraint("Radius", 2, Q("25 mm")))
sketch10.addConstraint(Sketcher.Constraint("Radius", 6, Q("40 mm")))
sketch10.addConstraint(Sketcher.Constraint("DistanceX", 1, 3, -1, 1, Q("7 mm")))
sketch10.setExpression("Constraints[76]", "Params.sketch10_radius")
sketch10.setExpression("Constraints[77]", "Params.sketch10_radius2")
sketch10.setExpression("Constraints[78]", "Params.sketch10_radius3")
pocket5 = body.newObject("PartDesign::Pocket", "Pocket004")
pocket5.Profile = sketch10
pocket5.setExpression("Length", "Params.pocket5_length")
pocket5.Reversed = True

doc.recompute()
